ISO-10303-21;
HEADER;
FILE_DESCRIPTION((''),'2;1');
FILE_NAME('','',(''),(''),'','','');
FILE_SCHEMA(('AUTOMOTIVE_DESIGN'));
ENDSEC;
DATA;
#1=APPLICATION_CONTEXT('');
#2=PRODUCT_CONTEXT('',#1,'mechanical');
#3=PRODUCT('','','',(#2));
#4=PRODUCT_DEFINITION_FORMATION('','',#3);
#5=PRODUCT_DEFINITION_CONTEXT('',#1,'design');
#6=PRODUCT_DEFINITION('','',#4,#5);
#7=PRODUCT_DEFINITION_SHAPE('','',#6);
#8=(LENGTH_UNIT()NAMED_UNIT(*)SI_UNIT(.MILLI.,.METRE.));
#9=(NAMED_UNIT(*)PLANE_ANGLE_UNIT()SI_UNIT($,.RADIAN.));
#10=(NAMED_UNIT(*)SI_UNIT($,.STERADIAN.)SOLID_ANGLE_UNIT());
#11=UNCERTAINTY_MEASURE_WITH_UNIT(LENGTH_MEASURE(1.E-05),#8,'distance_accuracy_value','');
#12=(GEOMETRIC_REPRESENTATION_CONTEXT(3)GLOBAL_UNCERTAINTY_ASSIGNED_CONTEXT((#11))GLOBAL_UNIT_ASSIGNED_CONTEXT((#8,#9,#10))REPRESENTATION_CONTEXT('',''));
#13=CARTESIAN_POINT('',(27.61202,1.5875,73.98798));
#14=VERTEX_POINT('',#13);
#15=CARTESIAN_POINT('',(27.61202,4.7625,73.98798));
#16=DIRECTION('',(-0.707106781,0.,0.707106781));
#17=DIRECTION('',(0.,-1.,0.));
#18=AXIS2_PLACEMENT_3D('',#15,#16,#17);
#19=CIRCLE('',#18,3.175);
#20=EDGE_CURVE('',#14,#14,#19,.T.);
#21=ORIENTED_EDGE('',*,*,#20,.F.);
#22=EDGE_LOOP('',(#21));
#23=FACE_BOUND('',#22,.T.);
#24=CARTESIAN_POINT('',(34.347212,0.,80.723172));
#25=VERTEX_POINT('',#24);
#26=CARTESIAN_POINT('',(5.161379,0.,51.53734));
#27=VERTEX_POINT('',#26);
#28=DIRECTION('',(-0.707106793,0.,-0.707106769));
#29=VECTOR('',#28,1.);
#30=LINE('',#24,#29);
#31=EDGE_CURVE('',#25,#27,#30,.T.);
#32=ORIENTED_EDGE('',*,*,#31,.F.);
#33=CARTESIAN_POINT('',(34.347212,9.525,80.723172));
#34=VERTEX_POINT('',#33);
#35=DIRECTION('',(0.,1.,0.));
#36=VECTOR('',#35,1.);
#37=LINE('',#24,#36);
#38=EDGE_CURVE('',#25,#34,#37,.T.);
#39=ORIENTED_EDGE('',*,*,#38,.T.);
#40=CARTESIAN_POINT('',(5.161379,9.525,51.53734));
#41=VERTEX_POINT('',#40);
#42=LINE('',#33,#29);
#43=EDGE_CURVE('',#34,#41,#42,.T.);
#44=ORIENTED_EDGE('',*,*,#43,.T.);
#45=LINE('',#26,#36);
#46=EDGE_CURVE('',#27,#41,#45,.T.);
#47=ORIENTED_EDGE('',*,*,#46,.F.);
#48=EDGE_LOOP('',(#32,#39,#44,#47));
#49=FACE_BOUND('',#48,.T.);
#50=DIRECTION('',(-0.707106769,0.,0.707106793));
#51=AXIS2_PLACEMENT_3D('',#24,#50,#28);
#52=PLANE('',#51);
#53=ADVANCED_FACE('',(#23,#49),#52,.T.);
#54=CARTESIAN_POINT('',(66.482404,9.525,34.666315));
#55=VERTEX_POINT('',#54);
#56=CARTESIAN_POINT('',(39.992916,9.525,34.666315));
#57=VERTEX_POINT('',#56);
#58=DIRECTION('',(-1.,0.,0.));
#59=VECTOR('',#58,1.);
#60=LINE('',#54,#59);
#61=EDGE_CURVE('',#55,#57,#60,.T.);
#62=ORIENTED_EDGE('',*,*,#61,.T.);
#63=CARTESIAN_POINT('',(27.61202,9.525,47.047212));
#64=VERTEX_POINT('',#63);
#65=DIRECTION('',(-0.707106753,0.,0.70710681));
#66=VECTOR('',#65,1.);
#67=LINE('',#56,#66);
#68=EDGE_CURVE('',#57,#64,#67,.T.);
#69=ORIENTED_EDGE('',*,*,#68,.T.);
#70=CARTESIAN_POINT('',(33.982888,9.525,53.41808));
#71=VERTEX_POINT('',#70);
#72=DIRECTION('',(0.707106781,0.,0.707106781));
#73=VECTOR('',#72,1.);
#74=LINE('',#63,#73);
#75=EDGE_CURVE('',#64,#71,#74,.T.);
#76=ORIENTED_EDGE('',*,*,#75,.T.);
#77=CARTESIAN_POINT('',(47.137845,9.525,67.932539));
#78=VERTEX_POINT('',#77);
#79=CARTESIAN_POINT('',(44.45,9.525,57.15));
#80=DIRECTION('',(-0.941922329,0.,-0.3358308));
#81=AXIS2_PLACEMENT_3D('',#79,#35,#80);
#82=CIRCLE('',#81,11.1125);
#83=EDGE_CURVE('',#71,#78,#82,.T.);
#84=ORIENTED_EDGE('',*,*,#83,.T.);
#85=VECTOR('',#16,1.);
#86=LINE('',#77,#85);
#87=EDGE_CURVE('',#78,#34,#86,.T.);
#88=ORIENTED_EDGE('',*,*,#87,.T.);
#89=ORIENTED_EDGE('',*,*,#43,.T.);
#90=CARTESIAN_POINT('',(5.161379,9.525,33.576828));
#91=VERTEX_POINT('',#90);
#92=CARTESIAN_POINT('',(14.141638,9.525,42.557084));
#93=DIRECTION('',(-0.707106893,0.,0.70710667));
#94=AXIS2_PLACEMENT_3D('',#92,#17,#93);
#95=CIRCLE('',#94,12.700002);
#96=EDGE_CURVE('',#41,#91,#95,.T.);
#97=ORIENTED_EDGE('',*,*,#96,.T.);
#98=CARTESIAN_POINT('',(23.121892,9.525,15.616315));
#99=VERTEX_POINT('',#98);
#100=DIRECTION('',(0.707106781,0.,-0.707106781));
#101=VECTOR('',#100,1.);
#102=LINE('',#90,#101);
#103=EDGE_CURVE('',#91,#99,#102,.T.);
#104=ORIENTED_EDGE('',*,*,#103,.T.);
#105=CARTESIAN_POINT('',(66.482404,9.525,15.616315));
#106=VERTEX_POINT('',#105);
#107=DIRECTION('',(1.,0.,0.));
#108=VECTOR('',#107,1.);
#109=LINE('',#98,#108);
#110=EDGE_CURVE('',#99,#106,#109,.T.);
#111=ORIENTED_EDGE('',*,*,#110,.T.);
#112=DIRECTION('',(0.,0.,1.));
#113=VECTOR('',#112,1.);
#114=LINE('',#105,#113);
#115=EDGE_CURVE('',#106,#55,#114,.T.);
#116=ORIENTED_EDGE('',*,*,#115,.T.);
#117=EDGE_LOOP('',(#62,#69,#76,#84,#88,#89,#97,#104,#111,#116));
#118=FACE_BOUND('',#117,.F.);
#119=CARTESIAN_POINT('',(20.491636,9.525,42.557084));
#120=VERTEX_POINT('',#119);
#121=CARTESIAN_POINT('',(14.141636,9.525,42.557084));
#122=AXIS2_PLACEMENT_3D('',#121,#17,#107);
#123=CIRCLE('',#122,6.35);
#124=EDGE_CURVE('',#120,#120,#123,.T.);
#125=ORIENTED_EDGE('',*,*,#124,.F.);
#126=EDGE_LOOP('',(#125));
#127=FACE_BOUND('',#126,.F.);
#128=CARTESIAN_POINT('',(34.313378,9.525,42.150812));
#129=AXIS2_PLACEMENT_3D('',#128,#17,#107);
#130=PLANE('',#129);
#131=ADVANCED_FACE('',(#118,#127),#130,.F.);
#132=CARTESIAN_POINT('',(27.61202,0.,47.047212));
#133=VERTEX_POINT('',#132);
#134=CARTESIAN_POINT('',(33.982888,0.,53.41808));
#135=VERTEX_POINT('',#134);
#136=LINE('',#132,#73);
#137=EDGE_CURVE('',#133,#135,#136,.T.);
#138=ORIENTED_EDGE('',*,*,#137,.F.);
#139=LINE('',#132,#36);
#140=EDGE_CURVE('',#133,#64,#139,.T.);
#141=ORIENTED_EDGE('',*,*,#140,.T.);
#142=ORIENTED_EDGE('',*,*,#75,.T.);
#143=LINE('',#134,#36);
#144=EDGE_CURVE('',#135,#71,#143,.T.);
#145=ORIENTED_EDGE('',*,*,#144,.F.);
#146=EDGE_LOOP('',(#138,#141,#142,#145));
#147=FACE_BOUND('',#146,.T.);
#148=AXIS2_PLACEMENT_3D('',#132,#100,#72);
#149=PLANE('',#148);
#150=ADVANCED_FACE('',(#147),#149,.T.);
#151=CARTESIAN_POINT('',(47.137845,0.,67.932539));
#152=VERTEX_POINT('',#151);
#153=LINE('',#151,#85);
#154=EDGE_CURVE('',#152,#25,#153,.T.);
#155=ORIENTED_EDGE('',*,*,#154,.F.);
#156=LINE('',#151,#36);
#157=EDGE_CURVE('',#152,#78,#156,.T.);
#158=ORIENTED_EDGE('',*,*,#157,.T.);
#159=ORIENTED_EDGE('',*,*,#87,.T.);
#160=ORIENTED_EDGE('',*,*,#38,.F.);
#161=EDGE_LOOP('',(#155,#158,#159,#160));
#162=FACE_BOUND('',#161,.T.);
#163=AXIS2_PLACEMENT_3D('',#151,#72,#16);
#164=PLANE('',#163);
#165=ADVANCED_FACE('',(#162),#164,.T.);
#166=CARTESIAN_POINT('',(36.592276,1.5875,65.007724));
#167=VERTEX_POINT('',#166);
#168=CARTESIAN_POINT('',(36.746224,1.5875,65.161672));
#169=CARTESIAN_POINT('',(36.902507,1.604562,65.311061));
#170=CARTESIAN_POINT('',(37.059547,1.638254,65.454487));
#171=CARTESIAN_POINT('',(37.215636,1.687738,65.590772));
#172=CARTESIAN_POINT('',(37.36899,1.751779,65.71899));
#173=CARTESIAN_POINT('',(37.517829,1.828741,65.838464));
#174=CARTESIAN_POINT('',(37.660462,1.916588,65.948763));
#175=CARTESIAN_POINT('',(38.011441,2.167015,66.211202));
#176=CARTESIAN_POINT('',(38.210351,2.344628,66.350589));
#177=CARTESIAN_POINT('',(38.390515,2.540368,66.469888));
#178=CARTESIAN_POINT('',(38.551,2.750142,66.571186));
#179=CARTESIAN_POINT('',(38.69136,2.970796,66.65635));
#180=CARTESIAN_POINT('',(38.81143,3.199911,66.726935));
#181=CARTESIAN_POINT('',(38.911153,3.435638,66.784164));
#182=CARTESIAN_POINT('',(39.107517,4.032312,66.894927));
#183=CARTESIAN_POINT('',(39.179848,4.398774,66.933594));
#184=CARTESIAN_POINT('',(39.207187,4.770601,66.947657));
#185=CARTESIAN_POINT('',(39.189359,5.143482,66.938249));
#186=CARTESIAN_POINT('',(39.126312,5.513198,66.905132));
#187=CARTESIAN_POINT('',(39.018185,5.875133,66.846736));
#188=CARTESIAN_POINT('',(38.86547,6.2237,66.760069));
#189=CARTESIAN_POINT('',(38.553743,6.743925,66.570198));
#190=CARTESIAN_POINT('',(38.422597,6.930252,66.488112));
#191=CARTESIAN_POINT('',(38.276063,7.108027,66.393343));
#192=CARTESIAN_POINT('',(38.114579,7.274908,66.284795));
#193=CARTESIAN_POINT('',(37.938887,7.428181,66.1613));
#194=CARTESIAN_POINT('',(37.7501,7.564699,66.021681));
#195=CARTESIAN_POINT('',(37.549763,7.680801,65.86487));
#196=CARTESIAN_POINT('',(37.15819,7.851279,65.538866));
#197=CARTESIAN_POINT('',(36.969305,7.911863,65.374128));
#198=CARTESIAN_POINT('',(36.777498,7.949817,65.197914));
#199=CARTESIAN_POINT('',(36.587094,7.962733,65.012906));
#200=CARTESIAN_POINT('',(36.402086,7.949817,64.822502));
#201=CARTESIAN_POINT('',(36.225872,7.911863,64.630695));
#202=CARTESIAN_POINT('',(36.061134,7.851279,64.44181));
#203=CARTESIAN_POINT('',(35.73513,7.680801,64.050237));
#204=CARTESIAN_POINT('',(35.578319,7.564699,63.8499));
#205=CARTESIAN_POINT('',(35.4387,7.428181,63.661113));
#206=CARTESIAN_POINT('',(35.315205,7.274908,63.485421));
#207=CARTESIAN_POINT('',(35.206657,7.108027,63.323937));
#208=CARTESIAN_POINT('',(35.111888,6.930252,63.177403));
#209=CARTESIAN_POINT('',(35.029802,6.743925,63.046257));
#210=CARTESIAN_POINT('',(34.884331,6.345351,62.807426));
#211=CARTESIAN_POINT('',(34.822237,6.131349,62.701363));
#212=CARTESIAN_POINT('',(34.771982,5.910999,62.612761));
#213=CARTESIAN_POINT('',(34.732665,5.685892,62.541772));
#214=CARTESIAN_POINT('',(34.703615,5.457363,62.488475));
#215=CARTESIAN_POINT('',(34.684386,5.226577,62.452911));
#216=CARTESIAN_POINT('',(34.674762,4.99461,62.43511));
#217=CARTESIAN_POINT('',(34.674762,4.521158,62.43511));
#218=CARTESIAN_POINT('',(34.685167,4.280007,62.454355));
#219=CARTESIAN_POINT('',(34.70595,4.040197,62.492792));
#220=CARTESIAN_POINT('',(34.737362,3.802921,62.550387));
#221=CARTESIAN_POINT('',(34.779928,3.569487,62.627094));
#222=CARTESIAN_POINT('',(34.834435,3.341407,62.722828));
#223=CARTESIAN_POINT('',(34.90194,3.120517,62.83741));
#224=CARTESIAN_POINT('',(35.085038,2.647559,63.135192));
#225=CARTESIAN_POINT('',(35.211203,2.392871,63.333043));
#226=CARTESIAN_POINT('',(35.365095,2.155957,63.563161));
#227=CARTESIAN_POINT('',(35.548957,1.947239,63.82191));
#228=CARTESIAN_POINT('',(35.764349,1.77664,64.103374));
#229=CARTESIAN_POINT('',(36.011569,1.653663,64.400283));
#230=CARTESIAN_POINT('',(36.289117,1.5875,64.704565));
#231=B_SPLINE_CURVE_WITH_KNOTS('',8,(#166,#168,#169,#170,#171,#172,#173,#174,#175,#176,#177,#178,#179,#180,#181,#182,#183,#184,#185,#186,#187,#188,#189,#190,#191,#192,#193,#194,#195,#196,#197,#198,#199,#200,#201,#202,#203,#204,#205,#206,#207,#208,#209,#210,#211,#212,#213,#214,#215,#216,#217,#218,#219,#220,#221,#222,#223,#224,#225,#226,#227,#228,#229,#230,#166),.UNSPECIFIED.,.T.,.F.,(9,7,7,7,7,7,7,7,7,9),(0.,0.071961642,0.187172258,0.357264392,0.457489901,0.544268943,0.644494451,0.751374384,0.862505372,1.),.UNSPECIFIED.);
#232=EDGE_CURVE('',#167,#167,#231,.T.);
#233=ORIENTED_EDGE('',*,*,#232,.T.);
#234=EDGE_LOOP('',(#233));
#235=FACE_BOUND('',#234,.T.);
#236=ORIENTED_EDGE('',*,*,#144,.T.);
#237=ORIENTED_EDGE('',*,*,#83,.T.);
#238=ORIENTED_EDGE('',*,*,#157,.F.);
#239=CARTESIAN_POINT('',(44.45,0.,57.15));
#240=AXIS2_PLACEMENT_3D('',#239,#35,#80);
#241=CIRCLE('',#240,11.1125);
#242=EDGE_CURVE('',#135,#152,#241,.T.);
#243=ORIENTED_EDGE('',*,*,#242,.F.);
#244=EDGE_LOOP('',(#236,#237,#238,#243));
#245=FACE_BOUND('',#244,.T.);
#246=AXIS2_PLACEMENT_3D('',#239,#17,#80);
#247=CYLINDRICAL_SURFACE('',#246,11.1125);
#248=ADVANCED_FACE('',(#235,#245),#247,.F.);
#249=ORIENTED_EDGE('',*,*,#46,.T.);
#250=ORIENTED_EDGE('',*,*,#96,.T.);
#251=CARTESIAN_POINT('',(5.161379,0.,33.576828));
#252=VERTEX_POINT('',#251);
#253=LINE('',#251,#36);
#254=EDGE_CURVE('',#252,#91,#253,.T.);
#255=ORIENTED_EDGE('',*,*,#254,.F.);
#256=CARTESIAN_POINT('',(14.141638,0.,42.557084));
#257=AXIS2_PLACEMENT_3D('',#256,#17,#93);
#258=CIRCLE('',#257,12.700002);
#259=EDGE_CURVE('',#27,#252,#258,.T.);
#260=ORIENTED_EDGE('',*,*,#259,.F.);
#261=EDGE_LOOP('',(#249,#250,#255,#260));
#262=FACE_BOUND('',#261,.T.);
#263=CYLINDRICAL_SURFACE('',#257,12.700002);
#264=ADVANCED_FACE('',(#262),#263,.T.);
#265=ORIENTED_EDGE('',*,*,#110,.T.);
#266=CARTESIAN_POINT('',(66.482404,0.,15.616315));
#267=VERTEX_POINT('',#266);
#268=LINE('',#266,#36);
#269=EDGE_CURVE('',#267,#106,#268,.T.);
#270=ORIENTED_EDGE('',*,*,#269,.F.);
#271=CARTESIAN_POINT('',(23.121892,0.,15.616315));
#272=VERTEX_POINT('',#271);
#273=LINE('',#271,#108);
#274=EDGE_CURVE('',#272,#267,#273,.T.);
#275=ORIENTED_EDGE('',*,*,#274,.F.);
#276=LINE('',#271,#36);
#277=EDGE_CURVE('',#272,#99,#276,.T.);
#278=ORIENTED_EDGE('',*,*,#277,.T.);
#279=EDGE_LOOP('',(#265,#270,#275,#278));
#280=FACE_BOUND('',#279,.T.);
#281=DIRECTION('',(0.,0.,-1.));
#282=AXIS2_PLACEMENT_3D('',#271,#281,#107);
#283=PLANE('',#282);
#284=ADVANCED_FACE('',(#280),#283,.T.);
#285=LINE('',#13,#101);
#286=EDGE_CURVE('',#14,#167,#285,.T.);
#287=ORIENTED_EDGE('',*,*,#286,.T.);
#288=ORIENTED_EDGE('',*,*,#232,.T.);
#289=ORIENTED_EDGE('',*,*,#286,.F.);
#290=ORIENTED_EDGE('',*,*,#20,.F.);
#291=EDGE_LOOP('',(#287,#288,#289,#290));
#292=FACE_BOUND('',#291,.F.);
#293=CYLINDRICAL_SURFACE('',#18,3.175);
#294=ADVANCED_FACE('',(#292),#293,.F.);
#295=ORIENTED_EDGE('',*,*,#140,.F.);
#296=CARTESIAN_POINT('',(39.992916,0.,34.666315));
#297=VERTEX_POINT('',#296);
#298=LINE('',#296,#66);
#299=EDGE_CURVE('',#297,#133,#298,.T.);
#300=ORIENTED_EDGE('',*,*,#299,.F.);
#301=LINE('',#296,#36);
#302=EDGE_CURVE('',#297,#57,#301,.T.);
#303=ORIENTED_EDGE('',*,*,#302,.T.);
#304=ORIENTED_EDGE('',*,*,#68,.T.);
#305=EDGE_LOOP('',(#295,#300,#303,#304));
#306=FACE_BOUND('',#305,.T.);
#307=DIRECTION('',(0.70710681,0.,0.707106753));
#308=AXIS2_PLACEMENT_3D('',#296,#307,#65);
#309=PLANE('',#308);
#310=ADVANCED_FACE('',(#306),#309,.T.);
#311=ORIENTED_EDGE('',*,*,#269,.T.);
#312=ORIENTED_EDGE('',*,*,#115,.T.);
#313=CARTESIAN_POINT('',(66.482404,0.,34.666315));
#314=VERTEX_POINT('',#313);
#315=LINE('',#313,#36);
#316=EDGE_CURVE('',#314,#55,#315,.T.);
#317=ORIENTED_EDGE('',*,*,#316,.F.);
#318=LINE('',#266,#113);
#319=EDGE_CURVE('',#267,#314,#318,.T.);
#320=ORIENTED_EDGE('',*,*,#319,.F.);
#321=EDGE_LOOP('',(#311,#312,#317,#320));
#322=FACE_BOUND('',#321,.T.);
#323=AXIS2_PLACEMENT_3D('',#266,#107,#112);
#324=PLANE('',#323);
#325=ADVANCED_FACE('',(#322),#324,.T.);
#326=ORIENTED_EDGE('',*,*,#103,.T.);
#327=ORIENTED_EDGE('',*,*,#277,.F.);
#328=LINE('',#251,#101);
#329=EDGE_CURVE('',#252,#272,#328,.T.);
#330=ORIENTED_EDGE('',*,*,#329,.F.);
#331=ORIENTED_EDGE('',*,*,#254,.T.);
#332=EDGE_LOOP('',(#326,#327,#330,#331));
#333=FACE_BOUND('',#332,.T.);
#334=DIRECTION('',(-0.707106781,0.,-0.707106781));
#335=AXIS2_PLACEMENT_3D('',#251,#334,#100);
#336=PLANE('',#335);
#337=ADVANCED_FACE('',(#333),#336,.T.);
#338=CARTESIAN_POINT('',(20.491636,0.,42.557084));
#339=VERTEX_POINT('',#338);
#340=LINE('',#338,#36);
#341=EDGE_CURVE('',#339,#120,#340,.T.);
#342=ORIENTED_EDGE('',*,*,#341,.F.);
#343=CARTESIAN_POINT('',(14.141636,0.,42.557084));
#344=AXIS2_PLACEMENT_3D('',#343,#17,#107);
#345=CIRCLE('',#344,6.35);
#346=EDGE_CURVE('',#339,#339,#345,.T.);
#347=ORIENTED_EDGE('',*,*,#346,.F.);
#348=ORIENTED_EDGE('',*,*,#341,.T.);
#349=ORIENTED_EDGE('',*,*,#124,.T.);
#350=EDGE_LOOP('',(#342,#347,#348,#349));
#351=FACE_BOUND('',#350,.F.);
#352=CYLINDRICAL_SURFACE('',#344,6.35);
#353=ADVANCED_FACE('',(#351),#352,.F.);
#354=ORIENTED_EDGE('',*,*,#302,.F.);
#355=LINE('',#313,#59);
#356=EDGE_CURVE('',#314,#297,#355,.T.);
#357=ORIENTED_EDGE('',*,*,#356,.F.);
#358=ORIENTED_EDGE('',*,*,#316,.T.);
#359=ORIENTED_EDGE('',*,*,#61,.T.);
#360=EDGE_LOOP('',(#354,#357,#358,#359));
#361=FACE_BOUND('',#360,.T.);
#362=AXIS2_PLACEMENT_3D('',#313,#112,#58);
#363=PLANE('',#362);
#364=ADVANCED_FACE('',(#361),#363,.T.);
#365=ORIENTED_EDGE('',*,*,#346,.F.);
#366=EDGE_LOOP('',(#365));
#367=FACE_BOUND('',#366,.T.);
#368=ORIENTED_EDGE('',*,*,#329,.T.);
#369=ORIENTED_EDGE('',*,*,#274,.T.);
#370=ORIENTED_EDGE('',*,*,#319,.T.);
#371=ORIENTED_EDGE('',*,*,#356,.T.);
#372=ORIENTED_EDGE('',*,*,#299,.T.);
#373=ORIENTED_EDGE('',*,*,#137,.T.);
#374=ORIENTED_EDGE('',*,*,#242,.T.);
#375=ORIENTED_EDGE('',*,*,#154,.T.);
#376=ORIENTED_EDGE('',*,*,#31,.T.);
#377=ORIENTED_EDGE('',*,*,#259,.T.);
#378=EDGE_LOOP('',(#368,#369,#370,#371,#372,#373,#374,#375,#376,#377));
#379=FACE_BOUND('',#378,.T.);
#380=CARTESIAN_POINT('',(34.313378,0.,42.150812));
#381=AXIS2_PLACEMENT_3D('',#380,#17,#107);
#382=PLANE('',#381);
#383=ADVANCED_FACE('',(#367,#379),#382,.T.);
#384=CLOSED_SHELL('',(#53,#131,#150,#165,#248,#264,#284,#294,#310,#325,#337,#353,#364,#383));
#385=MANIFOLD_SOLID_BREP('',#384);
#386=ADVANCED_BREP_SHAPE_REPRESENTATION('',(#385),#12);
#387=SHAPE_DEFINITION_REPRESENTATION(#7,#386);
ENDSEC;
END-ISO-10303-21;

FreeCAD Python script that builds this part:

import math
import FreeCAD as App
import Part
import Sketcher
from FreeCAD import Vector
Q = App.Units.Quantity

doc = App.newDocument("Part")
body = doc.addObject("PartDesign::Body", "Body")

# Sketch on XZ plane
sketch1 = body.newObject("Sketcher::SketchObject", "Sketch")
sketch1.AttachmentSupport = (doc.getObject("XZ_Plane"), [""])
sketch1.MapMode = "FlatFace"
sketch1.addGeometry(Part.ArcOfCircle(Part.Circle(Vector(44.45, 57.15, 0), Vector(0, 0, 1), 11.1125), math.radians(76.002722), math.radians(199.623066)), False)
sketch1.addGeometry(Part.LineSegment(Vector(47.137845, 67.932539, 0), Vector(34.347212, 80.723172, 0)), False)
sketch1.addGeometry(Part.LineSegment(Vector(34.347212, 80.723172, 0), Vector(5.161379, 51.53734, 0)), False)
sketch1.addGeometry(Part.ArcOfCircle(Part.Circle(Vector(14.141638, 42.557084, 0), Vector(0, 0, 1), 12.700002), math.radians(135.000009), math.radians(224.999991)), False)
sketch1.addGeometry(Part.LineSegment(Vector(5.161379, 33.576828, 0), Vector(23.121892, 15.616315, 0)), False)
sketch1.addGeometry(Part.LineSegment(Vector(23.121892, 15.616315, 0), Vector(66.482404, 15.616315, 0)), False)
sketch1.addGeometry(Part.LineSegment(Vector(66.482404, 15.616315, 0), Vector(66.482404, 34.666315, 0)), False)
sketch1.addGeometry(Part.LineSegment(Vector(66.482404, 34.666315, 0), Vector(39.992916, 34.666315, 0)), False)
sketch1.addGeometry(Part.LineSegment(Vector(39.992916, 34.666315, 0), Vector(27.61202, 47.047212, 0)), False)
sketch1.addGeometry(Part.LineSegment(Vector(27.61202, 47.047212, 0), Vector(33.982888, 53.41808, 0)), False)
sketch1.addGeometry(Part.Circle(Vector(14.141636, 42.557084, 0), Vector(0, 0, 1), 6.35), False)
sketch1.addConstraint(Sketcher.Constraint("Coincident", 0, 1, 1, 1))
sketch1.addConstraint(Sketcher.Constraint("Coincident", 1, 2, 2, 1))
sketch1.addConstraint(Sketcher.Constraint("Tangent", 2, 2, 3, 1))
sketch1.addConstraint(Sketcher.Constraint("Tangent", 3, 2, 4, 1))
sketch1.addConstraint(Sketcher.Constraint("Coincident", 4, 2, 5, 1))
sketch1.addConstraint(Sketcher.Constraint("Coincident", 5, 2, 6, 1))
sketch1.addConstraint(Sketcher.Constraint("Coincident", 6, 2, 7, 1))
sketch1.addConstraint(Sketcher.Constraint("Coincident", 7, 2, 8, 1))
sketch1.addConstraint(Sketcher.Constraint("Coincident", 8, 2, 9, 1))
sketch1.addConstraint(Sketcher.Constraint("Coincident", 9, 2, 0, 2))
sketch1.addConstraint(Sketcher.Constraint("Horizontal", 5))
sketch1.addConstraint(Sketcher.Constraint("Vertical", 6))
sketch1.addConstraint(Sketcher.Constraint("Horizontal", 7))
sketch1.addConstraint(Sketcher.Constraint("Coincident", 10, 3, 3, 3))
sketch1.addConstraint(Sketcher.Constraint("Perpendicular", 1, 2))
sketch1.addConstraint(Sketcher.Constraint("Perpendicular", 2, 4))
sketch1.addConstraint(Sketcher.Constraint("Parallel", 4, 8))
sketch1.addConstraint(Sketcher.Constraint("Perpendicular", 8, 9))
sketch1.addConstraint(Sketcher.Constraint("Vertical", 2, 2, 3, 2))
sketch1.addConstraint(Sketcher.Constraint("Diameter", 10, Q("0.5 in")))
sketch1.addConstraint(Sketcher.Constraint("Radius", 3, Q("0.5000001 in")))
sketch1.addConstraint(Sketcher.Constraint("Distance", 4, Q("1 in")))
sketch1.addConstraint(Sketcher.Constraint("Radius", 0, Q("0.4375 in")))
sketch1.addConstraint(Sketcher.Constraint("DistanceY", 6, 1, 6, 2, Q("0.75 in")))
sketch1.addConstraint(Sketcher.Constraint("DistanceX", -1, 1, 0, 3, Q("1.75 in")))
sketch1.addConstraint(Sketcher.Constraint("DistanceY", -1, 1, 0, 3, Q("2.25 in")))
sketch1.addConstraint(Sketcher.Constraint("Distance", 2, Q("1.625 in")))
sketch1.addConstraint(Sketcher.Constraint("DistanceX", 7, 2, 7, 1, 26.489488))
sketch1.addConstraint(Sketcher.Constraint("DistanceY", 2, 2, 0, 1, 16.395199))
sketch1.addConstraint(Sketcher.Constraint("Distance", 8, 17.509232))
sketch1.addConstraint(Sketcher.Constraint("DistanceX", 5, 1, 5, 2, 43.360512))
sketch1.addConstraint(Sketcher.Constraint("DistanceY", -1, 1, 0, 1, 67.932539))
pad1 = body.newObject("PartDesign::Pad", "Pad")
pad1.Profile = sketch1
pad1.Length = Q("0.375 in")
pad1.Reversed = True

# Sketch on an angled plane
sketch2 = body.newObject("Sketcher::SketchObject", "Sketch001")
sketch2.Placement = App.Placement(Vector(-23.18798, 0, 23.18798), App.Rotation(Vector(0, -1, 0), Vector(0.707106781, 0, 0.707106781), Vector(-0.707106781, 0, 0.707106781), "ZXY"))
sketch2.addGeometry(Part.Circle(Vector(-4.7625, 71.842049, 0), Vector(0, 0, 1), 3.175), False)
sketch2.addConstraint(Sketcher.Constraint("Diameter", 0, Q("0.25 in")))
sketch2.addConstraint(Sketcher.Constraint("DistanceX", 0, 3, -1, 1, Q("0.1875 in")))
sketch2.addConstraint(Sketcher.Constraint("DistanceY", -1, 1, 0, 3, 71.842049))
pocket1 = body.newObject("PartDesign::Pocket", "Pocket")
pocket1.Profile = sketch2
pocket1.Length = Q("1 in")

doc.recompute()
